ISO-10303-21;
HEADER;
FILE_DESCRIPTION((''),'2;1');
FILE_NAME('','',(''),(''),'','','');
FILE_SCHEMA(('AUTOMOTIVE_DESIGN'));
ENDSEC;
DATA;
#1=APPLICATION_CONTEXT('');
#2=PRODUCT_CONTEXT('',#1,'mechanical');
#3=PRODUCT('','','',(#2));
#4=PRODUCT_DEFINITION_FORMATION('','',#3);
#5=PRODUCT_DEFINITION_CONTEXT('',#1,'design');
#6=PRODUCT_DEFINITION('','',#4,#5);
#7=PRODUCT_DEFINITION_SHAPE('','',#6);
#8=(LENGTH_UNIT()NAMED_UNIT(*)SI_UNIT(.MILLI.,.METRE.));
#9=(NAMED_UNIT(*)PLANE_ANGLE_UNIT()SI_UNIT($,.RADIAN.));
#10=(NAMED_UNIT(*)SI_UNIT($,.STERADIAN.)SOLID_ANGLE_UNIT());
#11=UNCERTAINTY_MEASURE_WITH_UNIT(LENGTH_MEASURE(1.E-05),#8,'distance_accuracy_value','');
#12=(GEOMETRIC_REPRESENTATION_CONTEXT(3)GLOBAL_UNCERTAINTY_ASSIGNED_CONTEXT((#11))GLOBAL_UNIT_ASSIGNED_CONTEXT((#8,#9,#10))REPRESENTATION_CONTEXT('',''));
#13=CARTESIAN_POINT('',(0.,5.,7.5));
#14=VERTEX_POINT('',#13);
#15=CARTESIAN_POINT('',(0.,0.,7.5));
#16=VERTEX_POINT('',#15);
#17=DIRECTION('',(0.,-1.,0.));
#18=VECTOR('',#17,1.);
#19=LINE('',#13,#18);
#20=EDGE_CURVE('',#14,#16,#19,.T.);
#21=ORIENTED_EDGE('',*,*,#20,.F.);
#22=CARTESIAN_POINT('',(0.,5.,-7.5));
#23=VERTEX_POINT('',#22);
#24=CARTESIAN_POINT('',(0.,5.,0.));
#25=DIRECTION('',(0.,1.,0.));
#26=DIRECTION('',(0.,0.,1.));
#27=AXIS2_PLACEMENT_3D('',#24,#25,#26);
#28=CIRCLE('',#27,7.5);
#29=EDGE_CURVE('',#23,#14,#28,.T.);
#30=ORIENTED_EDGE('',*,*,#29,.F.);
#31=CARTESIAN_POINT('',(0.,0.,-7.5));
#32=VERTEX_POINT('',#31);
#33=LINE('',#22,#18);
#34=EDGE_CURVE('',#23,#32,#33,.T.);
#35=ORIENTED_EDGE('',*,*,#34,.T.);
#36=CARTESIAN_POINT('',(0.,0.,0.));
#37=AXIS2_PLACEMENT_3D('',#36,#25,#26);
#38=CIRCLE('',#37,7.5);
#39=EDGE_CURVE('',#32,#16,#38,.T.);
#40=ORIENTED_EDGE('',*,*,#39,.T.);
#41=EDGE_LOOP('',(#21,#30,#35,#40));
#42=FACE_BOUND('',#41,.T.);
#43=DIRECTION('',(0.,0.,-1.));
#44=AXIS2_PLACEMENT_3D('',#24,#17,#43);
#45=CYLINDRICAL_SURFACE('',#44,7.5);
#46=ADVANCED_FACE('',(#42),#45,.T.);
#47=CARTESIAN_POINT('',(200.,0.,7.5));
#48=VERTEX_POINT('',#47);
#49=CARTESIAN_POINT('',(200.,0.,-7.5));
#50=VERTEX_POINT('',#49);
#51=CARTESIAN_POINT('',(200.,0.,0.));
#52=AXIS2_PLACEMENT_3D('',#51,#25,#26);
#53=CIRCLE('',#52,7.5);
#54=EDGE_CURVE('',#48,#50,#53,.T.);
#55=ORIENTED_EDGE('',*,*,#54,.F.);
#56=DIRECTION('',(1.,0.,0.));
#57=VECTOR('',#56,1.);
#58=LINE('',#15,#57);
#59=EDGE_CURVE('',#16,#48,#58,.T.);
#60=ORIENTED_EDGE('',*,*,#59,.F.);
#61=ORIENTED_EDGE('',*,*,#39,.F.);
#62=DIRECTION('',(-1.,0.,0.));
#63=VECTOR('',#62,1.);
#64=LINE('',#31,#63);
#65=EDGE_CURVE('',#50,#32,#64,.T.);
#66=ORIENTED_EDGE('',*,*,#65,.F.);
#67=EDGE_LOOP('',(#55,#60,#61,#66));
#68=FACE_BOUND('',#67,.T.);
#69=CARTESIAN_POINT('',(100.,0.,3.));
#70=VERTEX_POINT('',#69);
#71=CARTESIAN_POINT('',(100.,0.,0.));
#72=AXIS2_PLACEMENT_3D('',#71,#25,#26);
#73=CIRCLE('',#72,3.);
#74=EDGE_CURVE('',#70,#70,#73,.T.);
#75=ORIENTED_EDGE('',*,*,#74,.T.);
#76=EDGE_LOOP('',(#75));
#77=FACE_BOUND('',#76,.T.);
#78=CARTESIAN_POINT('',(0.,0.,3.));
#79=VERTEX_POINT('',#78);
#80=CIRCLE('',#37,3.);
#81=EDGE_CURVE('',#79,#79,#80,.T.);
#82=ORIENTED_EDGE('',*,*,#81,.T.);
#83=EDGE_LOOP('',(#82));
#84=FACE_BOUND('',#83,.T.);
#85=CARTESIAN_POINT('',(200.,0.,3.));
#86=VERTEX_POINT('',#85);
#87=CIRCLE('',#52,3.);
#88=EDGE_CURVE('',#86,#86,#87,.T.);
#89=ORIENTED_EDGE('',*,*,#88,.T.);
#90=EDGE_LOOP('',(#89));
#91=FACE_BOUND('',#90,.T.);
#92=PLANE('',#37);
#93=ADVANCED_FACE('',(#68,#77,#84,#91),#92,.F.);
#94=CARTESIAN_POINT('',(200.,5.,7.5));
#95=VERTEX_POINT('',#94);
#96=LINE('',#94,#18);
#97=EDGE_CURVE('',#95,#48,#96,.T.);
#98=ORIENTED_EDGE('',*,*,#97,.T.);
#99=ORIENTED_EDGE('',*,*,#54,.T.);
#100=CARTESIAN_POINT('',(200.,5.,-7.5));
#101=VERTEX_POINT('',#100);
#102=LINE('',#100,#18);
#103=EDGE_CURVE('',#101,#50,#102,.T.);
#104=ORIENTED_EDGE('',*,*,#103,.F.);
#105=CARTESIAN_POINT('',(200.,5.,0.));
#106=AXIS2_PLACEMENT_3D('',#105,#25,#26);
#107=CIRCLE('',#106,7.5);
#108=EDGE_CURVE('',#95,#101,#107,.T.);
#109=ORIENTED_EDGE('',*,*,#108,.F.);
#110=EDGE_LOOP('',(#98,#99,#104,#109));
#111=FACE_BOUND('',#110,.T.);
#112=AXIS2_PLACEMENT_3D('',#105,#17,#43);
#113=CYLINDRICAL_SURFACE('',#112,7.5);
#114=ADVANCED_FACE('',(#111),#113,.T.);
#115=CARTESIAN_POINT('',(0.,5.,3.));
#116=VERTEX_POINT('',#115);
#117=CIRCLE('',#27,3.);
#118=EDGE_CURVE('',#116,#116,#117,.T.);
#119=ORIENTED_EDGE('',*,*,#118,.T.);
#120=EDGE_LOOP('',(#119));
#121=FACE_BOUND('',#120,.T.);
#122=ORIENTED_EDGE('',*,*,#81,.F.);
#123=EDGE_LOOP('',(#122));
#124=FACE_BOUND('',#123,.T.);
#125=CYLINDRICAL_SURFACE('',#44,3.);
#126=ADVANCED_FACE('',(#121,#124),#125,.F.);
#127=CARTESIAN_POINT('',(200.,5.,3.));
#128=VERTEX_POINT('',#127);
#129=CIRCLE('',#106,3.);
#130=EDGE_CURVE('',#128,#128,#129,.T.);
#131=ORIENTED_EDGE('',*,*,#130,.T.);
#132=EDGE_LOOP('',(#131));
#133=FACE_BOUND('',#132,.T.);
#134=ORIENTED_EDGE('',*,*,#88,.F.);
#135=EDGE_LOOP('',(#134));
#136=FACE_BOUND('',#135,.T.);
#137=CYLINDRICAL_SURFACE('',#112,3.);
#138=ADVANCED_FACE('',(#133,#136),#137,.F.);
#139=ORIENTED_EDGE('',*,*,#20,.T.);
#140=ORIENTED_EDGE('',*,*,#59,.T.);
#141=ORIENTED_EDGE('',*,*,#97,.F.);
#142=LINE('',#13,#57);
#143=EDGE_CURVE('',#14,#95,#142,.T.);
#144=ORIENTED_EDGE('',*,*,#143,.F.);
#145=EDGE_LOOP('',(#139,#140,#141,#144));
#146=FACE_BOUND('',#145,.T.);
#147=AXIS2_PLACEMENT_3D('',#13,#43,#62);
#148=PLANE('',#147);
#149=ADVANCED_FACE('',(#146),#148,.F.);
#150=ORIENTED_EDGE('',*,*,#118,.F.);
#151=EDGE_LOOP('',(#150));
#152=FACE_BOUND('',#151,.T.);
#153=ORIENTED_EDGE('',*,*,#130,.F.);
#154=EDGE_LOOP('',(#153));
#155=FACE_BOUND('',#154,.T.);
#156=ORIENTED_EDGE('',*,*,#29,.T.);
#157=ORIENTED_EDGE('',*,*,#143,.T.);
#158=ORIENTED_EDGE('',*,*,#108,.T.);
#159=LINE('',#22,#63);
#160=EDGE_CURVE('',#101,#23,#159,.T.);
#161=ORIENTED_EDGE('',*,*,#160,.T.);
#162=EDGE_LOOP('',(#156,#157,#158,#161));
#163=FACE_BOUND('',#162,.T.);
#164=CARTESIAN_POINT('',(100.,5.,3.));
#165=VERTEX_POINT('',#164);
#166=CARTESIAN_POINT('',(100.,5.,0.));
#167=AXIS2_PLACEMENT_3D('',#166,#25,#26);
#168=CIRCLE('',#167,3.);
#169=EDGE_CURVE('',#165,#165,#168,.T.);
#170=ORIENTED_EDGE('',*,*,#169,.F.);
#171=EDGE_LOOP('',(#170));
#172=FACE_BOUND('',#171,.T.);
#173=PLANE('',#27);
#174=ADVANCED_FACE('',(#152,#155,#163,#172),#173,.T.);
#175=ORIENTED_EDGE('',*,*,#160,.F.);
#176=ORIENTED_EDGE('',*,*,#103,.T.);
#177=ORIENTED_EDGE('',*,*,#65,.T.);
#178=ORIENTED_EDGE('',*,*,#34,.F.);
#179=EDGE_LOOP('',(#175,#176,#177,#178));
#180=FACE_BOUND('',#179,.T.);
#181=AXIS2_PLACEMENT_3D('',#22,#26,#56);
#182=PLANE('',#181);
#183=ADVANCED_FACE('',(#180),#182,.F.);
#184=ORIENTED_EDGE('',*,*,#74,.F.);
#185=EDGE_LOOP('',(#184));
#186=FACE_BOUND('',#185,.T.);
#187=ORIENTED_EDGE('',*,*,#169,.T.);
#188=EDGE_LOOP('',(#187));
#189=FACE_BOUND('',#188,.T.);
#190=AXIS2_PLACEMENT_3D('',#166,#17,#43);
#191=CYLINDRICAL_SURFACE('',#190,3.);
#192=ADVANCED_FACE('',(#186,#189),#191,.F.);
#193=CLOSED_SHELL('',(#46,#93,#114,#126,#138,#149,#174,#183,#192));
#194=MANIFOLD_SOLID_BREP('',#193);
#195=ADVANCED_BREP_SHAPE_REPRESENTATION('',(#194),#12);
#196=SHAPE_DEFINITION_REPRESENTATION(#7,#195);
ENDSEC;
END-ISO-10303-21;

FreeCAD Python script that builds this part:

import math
import FreeCAD as App
import Part
import Sketcher
from FreeCAD import Vector

doc = App.newDocument("Part")
body = doc.addObject("PartDesign::Body", "Body")

# Sketch on XZ plane
sketch1 = body.newObject("Sketcher::SketchObject", "Sketch")
sketch1.AttachmentSupport = (doc.getObject("XZ_Plane"), [""])
sketch1.MapMode = "FlatFace"
sketch1.addGeometry([
    Part.LineSegment(Vector(200, -7.5, 0), Vector(0, -7.5, 0)),  # 0
    Part.ArcOfCircle(Part.Circle(Vector(0, 0, 0), Vector(0, 0, 1), 7.5), math.radians(90), math.radians(270)),  # 1
    Part.LineSegment(Vector(0, 7.5, 0), Vector(200, 7.5, 0)),  # 2
    Part.ArcOfCircle(Part.Circle(Vector(200, 0, 0), Vector(0, 0, 1), 7.5), math.radians(-90), math.radians(90)),  # 3
    Part.Circle(Vector(200, 0, 0), Vector(0, 0, 1), 3),  # 4
    Part.Circle(Vector(100, 0, 0), Vector(0, 0, 1), 3),  # 5
    Part.Circle(Vector(0, 0, 0), Vector(0, 0, 1), 3),  # 6
], False)
sketch1.addConstraint([
    Sketcher.Constraint("Tangent", 0, 2, 1, 2),
    Sketcher.Constraint("Tangent", 1, 1, 2, 1),
    Sketcher.Constraint("Tangent", 2, 2, 3, 2),
    Sketcher.Constraint("Tangent", 3, 1, 0, 1),
    Sketcher.Constraint("Horizontal", 0),
    Sketcher.Constraint("Horizontal", 2),
    Sketcher.Constraint("Coincident", 1, 3, -1, 1),
    Sketcher.Constraint("Coincident", 6, 3, -1, 1),
    Sketcher.Constraint("Coincident", 4, 3, 3, 3),
    Sketcher.Constraint("Equal", 4, 5),
    Sketcher.Constraint("Equal", 5, 6),
    Sketcher.Constraint("PointOnObject", 5, 3, -1),
    Sketcher.Constraint("Diameter", 4, 6.0),
    Sketcher.Constraint("Radius", 1, 7.5),
    Sketcher.Constraint("DistanceX", 0, 2, 0, 1, 200.0),
    Sketcher.Constraint("DistanceX", -1, 1, 5, 3, 100.0),
])
pad1 = body.newObject("PartDesign::Pad", "Pad")
pad1.Profile = sketch1
pad1.Length = 5
pad1.Reversed = True

doc.recompute()
